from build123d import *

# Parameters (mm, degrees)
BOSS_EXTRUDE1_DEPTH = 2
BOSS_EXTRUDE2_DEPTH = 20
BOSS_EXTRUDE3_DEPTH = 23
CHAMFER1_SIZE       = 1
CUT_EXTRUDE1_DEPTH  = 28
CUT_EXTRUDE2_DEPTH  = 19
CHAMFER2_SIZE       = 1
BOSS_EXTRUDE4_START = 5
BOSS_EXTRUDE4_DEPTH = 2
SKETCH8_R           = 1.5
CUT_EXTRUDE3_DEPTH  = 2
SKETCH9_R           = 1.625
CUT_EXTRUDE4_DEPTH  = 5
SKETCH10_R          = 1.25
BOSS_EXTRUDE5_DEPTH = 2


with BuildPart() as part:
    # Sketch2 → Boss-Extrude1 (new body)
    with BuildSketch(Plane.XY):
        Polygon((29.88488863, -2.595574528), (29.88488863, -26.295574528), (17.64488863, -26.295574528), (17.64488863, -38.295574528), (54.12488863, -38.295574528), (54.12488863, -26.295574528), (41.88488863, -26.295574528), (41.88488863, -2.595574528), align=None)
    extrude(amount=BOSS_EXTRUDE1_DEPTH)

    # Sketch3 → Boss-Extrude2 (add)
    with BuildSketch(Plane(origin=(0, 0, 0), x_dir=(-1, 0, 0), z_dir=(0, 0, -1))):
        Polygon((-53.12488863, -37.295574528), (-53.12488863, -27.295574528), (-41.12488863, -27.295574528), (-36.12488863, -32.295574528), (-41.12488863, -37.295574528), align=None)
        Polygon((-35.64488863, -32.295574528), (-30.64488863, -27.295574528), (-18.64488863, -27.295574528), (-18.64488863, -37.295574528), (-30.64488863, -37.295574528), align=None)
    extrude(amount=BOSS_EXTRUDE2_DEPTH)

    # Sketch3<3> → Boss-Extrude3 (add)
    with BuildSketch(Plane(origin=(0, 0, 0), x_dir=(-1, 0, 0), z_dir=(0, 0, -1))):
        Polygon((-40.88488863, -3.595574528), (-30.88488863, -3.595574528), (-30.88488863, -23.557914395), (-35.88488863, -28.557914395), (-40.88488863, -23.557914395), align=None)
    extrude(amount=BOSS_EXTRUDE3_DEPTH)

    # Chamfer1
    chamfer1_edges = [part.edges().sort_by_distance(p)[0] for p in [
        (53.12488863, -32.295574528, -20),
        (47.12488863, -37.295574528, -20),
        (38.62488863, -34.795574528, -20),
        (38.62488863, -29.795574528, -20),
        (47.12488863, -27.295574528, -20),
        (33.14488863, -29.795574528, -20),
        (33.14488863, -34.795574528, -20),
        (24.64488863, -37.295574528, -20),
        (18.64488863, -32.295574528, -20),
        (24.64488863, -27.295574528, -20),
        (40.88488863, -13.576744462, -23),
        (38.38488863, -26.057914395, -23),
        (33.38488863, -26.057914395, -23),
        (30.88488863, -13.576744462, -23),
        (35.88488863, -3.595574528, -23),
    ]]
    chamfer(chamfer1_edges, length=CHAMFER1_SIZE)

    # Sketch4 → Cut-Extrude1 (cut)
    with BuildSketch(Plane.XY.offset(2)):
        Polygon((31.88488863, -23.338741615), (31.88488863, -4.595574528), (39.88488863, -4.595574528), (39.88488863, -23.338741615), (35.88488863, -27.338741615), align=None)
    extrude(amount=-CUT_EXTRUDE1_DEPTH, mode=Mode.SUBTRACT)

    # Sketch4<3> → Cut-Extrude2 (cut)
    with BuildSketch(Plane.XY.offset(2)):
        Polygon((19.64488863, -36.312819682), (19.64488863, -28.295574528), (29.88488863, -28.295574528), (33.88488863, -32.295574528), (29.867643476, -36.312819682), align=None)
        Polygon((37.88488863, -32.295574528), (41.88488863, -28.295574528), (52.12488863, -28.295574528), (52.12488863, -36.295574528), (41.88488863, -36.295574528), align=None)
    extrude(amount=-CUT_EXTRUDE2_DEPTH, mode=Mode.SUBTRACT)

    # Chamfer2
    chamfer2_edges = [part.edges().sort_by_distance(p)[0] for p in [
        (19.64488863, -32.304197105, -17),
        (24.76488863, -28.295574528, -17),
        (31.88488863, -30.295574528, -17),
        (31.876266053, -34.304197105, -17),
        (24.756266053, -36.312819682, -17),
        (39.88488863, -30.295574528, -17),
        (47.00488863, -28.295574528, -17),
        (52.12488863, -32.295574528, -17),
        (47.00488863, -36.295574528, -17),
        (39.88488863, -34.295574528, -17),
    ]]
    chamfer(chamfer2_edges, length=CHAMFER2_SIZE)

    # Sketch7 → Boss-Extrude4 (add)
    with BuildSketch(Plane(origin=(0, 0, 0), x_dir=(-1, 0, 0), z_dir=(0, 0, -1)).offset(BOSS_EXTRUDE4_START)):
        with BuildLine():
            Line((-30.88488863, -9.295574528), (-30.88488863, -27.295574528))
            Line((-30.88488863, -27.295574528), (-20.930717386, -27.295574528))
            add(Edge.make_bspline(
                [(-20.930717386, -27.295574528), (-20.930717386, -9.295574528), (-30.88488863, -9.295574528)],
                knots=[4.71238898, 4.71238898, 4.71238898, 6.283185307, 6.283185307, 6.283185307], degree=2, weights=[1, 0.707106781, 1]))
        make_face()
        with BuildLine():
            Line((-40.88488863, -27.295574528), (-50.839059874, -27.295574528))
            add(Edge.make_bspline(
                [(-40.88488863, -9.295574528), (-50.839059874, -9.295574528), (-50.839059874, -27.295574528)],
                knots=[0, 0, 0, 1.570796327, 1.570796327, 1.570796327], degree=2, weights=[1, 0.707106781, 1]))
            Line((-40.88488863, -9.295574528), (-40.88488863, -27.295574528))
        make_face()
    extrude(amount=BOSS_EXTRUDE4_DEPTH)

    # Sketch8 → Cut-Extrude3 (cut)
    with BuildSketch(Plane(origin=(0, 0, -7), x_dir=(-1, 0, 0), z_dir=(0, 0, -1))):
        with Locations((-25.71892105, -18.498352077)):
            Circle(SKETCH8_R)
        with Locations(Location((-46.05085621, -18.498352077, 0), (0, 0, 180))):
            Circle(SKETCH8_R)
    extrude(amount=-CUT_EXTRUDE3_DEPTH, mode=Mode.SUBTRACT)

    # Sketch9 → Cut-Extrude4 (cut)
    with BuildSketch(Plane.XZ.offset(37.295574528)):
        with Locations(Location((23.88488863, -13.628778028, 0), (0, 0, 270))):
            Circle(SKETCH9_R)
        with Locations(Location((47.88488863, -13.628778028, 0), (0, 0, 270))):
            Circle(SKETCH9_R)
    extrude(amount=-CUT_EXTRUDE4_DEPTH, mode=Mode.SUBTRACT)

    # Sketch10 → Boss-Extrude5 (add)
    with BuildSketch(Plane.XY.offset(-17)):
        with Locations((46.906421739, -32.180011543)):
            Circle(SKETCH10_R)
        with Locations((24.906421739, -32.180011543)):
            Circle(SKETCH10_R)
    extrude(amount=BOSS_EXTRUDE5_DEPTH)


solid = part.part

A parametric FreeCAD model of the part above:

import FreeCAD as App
import Part
import Sketcher

V = App.Vector
Q = App.Units.Quantity


def edges_at(feature, points):
    """Names of the edges that pass closest to the given points."""
    edges = feature.Shape.Edges
    near = lambda p: min(range(len(edges)), key=lambda i: edges[i].distToShape(Part.Vertex(*p))[0])
    return sorted({f"Edge{near(p) + 1}" for p in points})

doc = App.newDocument("Part")
body = doc.addObject("PartDesign::Body", "Body")

# Sketch on XY plane
sketch1 = body.newObject("Sketcher::SketchObject", "Sketch")
sketch1.AttachmentSupport = (doc.getObject("XY_Plane"), [""])
sketch1.MapMode = "FlatFace"
sketch1.addGeometry(Part.LineSegment(V(30, -3, 0), V(30, -26, 0)), False)
sketch1.addGeometry(Part.LineSegment(V(30, -26, 0), V(18, -26, 0)), False)
sketch1.addGeometry(Part.LineSegment(V(18, -26, 0), V(18, -38, 0)), False)
sketch1.addGeometry(Part.LineSegment(V(18, -38, 0), V(54, -38, 0)), False)
sketch1.addGeometry(Part.LineSegment(V(54, -38, 0), V(54, -26, 0)), False)
sketch1.addGeometry(Part.LineSegment(V(54, -26, 0), V(42, -26, 0)), False)
sketch1.addGeometry(Part.LineSegment(V(42, -26, 0), V(42, -3, 0)), False)
sketch1.addGeometry(Part.LineSegment(V(42, -3, 0), V(30, -3, 0)), False)
sketch1.addConstraint(Sketcher.Constraint("Coincident", 0, 2, 1, 1))
sketch1.addConstraint(Sketcher.Constraint("Coincident", 1, 2, 2, 1))
sketch1.addConstraint(Sketcher.Constraint("Coincident", 2, 2, 3, 1))
sketch1.addConstraint(Sketcher.Constraint("Coincident", 3, 2, 4, 1))
sketch1.addConstraint(Sketcher.Constraint("Coincident", 4, 2, 5, 1))
sketch1.addConstraint(Sketcher.Constraint("Coincident", 5, 2, 6, 1))
sketch1.addConstraint(Sketcher.Constraint("Coincident", 6, 2, 7, 1))
sketch1.addConstraint(Sketcher.Constraint("Coincident", 7, 2, 0, 1))
sketch1.addConstraint(Sketcher.Constraint("Vertical", 0))
sketch1.addConstraint(Sketcher.Constraint("Horizontal", 1))
sketch1.addConstraint(Sketcher.Constraint("Vertical", 2))
sketch1.addConstraint(Sketcher.Constraint("Horizontal", 3))
sketch1.addConstraint(Sketcher.Constraint("Vertical", 4))
sketch1.addConstraint(Sketcher.Constraint("Horizontal", 5))
sketch1.addConstraint(Sketcher.Constraint("Vertical", 6))
sketch1.addConstraint(Sketcher.Constraint("Horizontal", 7))
sketch1.addConstraint(Sketcher.Constraint("Horizontal", 1, 2, 4, 2))
sketch1.addConstraint(Sketcher.Constraint("Equal", 1, 5))
sketch1.addConstraint(Sketcher.Constraint("Equal", 7, 2))
sketch1.addConstraint(Sketcher.Constraint("DistanceX", 7, 2, 7, 1, Q("12 mm")))
sketch1.addConstraint(Sketcher.Constraint("DistanceY", 0, 2, 0, 1, Q("23.7 mm")))
sketch1.addConstraint(Sketcher.Constraint("DistanceX", 1, 2, 1, 1, Q("12.24 mm")))
sketch1.addConstraint(Sketcher.Constraint("DistanceX", -1, 1, 0, 2, Q("29.884889 mm")))
sketch1.addConstraint(Sketcher.Constraint("DistanceY", 0, 2, -1, 1, Q("26.295575 mm")))
pad1 = body.newObject("PartDesign::Pad", "Pad")
pad1.Profile = sketch1
pad1.Length = 2

# Sketch on XY plane
sketch2 = body.newObject("Sketcher::SketchObject", "Sketch001")
sketch2.AttachmentSupport = (doc.getObject("XY_Plane"), [""])
sketch2.MapMode = "FlatFace"
sketch2.addGeometry(Part.LineSegment(V(53, -27, 0), V(53, -37, 0)), False)
sketch2.addGeometry(Part.LineSegment(V(53, -37, 0), V(41, -37, 0)), False)
sketch2.addGeometry(Part.LineSegment(V(41, -37, 0), V(36, -32, 0)), False)
sketch2.addGeometry(Part.LineSegment(V(36, -32, 0), V(41, -27, 0)), False)
sketch2.addGeometry(Part.LineSegment(V(41, -27, 0), V(53, -27, 0)), False)
sketch2.addGeometry(Part.LineSegment(V(31, -27, 0), V(36, -32, 0)), False)
sketch2.addGeometry(Part.LineSegment(V(36, -32, 0), V(31, -37, 0)), False)
sketch2.addGeometry(Part.LineSegment(V(31, -37, 0), V(19, -37, 0)), False)
sketch2.addGeometry(Part.LineSegment(V(19, -37, 0), V(19, -27, 0)), False)
sketch2.addGeometry(Part.LineSegment(V(19, -27, 0), V(31, -27, 0)), False)
sketch2.addConstraint(Sketcher.Constraint("Coincident", 0, 2, 1, 1))
sketch2.addConstraint(Sketcher.Constraint("Coincident", 1, 2, 2, 1))
sketch2.addConstraint(Sketcher.Constraint("Coincident", 2, 2, 3, 1))
sketch2.addConstraint(Sketcher.Constraint("Coincident", 3, 2, 4, 1))
sketch2.addConstraint(Sketcher.Constraint("Coincident", 4, 2, 0, 1))
sketch2.addConstraint(Sketcher.Constraint("Coincident", 5, 2, 6, 1))
sketch2.addConstraint(Sketcher.Constraint("Coincident", 6, 2, 7, 1))
sketch2.addConstraint(Sketcher.Constraint("Coincident", 7, 2, 8, 1))
sketch2.addConstraint(Sketcher.Constraint("Coincident", 8, 2, 9, 1))
sketch2.addConstraint(Sketcher.Constraint("Coincident", 9, 2, 5, 1))
sketch2.addConstraint(Sketcher.Constraint("Vertical", 0))
sketch2.addConstraint(Sketcher.Constraint("Horizontal", 1))
sketch2.addConstraint(Sketcher.Constraint("Horizontal", 4))
sketch2.addConstraint(Sketcher.Constraint("Horizontal", 7))
sketch2.addConstraint(Sketcher.Constraint("Vertical", 8))
sketch2.addConstraint(Sketcher.Constraint("Horizontal", 9))
sketch2.addConstraint(Sketcher.Constraint("Perpendicular", 2, 3))
sketch2.addConstraint(Sketcher.Constraint("Perpendicular", 3, 5))
sketch2.addConstraint(Sketcher.Constraint("Perpendicular", 5, 6))
sketch2.addConstraint(Sketcher.Constraint("Horizontal", 2, 2, 5, 2))
sketch2.addConstraint(Sketcher.Constraint("Horizontal", 1, 2, 6, 2))
sketch2.addConstraint(Sketcher.Constraint("Horizontal", 4, 2, 8, 2))
sketch2.addConstraint(Sketcher.Constraint("Vertical", 1, 2, 3, 2))
sketch2.addConstraint(Sketcher.Constraint("Vertical", 6, 2, 9, 2))
sketch2.addConstraint(Sketcher.Constraint("Equal", 4, 7))
sketch2.addConstraint(Sketcher.Constraint("DistanceX", 1, 2, 1, 1, Q("12 mm")))
sketch2.addConstraint(Sketcher.Constraint("DistanceY", 0, 2, 0, 1, Q("10 mm")))
sketch2.addConstraint(Sketcher.Constraint("DistanceX", 5, 2, 2, 2, Q("0.48 mm")))
sketch2.addConstraint(Sketcher.Constraint("DistanceX", -1, 1, 0, 2, Q("53.124889 mm")))
sketch2.addConstraint(Sketcher.Constraint("DistanceY", 0, 2, -1, 1, Q("37.295575 mm")))
pad2 = body.newObject("PartDesign::Pad", "Pad001")
pad2.Profile = sketch2
pad2.Length = 20
pad2.Reversed = True

# Sketch on XY plane
sketch3 = body.newObject("Sketcher::SketchObject", "Sketch002")
sketch3.AttachmentSupport = (doc.getObject("XY_Plane"), [""])
sketch3.MapMode = "FlatFace"
sketch3.addGeometry(Part.LineSegment(V(31, -4, 0), V(41, -4, 0)), False)
sketch3.addGeometry(Part.LineSegment(V(41, -4, 0), V(41, -24, 0)), False)
sketch3.addGeometry(Part.LineSegment(V(41, -24, 0), V(36, -29, 0)), False)
sketch3.addGeometry(Part.LineSegment(V(36, -29, 0), V(31, -24, 0)), False)
sketch3.addGeometry(Part.LineSegment(V(31, -24, 0), V(31, -4, 0)), False)
sketch3.addConstraint(Sketcher.Constraint("Coincident", 0, 2, 1, 1))
sketch3.addConstraint(Sketcher.Constraint("Coincident", 1, 2, 2, 1))
sketch3.addConstraint(Sketcher.Constraint("Coincident", 2, 2, 3, 1))
sketch3.addConstraint(Sketcher.Constraint("Coincident", 3, 2, 4, 1))
sketch3.addConstraint(Sketcher.Constraint("Coincident", 4, 2, 0, 1))
sketch3.addConstraint(Sketcher.Constraint("Horizontal", 0))
sketch3.addConstraint(Sketcher.Constraint("Vertical", 1))
sketch3.addConstraint(Sketcher.Constraint("Vertical", 4))
sketch3.addConstraint(Sketcher.Constraint("Perpendicular", 2, 3))
sketch3.addConstraint(Sketcher.Constraint("Horizontal", 1, 2, 3, 2))
sketch3.addConstraint(Sketcher.Constraint("Equal", 2, 3))
sketch3.addConstraint(Sketcher.Constraint("DistanceX", 0, 1, 0, 2, Q("10 mm")))
sketch3.addConstraint(Sketcher.Constraint("DistanceY", 1, 2, 1, 1, Q("19.96234 mm")))
sketch3.addConstraint(Sketcher.Constraint("DistanceX", -1, 1, 0, 2, Q("40.884889 mm")))
sketch3.addConstraint(Sketcher.Constraint("DistanceY", 0, 2, -1, 1, Q("3.595575 mm")))
pad3 = body.newObject("PartDesign::Pad", "Pad002")
pad3.Profile = sketch3
pad3.Length = 23
pad3.Reversed = True
doc.recompute()

chamfer = body.newObject("PartDesign::Chamfer", "Chamfer")
chamfer.Base = (pad3, edges_at(pad3, [
    (53.125, -32.296, -20),
    (47.125, -37.296, -20),
    (38.625, -34.796, -20),
    (38.625, -29.796, -20),
    (47.125, -27.296, -20),
    (33.145, -29.796, -20),
    (33.145, -34.796, -20),
    (24.645, -37.296, -20),
    (18.645, -32.296, -20),
    (24.645, -27.296, -20),
    (40.885, -13.577, -23),
    (38.385, -26.058, -23),
    (33.385, -26.058, -23),
    (30.885, -13.577, -23),
    (35.885, -3.596, -23),
]))
chamfer.Size = 1

# Sketch on XY plane
sketch4 = body.newObject("Sketcher::SketchObject", "Sketch003")
sketch4.AttachmentSupport = (doc.getObject("XY_Plane"), [""])
sketch4.MapMode = "FlatFace"
sketch4.AttachmentOffset = App.Placement(V(0, 0, 2), App.Rotation())
sketch4.addGeometry(Part.LineSegment(V(32, -5, 0), V(32, -23, 0)), False)
sketch4.addGeometry(Part.LineSegment(V(32, -23, 0), V(36, -27, 0)), False)
sketch4.addGeometry(Part.LineSegment(V(36, -27, 0), V(40, -23, 0)), False)
sketch4.addGeometry(Part.LineSegment(V(40, -23, 0), V(40, -5, 0)), False)
sketch4.addGeometry(Part.LineSegment(V(40, -5, 0), V(32, -5, 0)), False)
sketch4.addConstraint(Sketcher.Constraint("Coincident", 0, 2, 1, 1))
sketch4.addConstraint(Sketcher.Constraint("Coincident", 1, 2, 2, 1))
sketch4.addConstraint(Sketcher.Constraint("Coincident", 2, 2, 3, 1))
sketch4.addConstraint(Sketcher.Constraint("Coincident", 3, 2, 4, 1))
sketch4.addConstraint(Sketcher.Constraint("Coincident", 4, 2, 0, 1))
sketch4.addConstraint(Sketcher.Constraint("Vertical", 0))
sketch4.addConstraint(Sketcher.Constraint("Vertical", 3))
sketch4.addConstraint(Sketcher.Constraint("Horizontal", 4))
sketch4.addConstraint(Sketcher.Constraint("Perpendicular", 1, 2))
sketch4.addConstraint(Sketcher.Constraint("Horizontal", 0, 2, 2, 2))
sketch4.addConstraint(Sketcher.Constraint("Equal", 1, 2))
sketch4.addConstraint(Sketcher.Constraint("DistanceX", 4, 2, 4, 1, Q("8 mm")))
sketch4.addConstraint(Sketcher.Constraint("DistanceY", 0, 2, 0, 1, Q("18.743167 mm")))
sketch4.addConstraint(Sketcher.Constraint("DistanceX", -1, 1, 0, 2, Q("31.884889 mm")))
sketch4.addConstraint(Sketcher.Constraint("DistanceY", 0, 2, -1, 1, Q("23.338742 mm")))
pocket1 = body.newObject("PartDesign::Pocket", "Pocket")
pocket1.Profile = sketch4
pocket1.Length = 28

# Sketch on XY plane
sketch5 = body.newObject("Sketcher::SketchObject", "Sketch004")
sketch5.AttachmentSupport = (doc.getObject("XY_Plane"), [""])
sketch5.MapMode = "FlatFace"
sketch5.AttachmentOffset = App.Placement(V(0, 0, 2), App.Rotation())
sketch5.addGeometry(Part.LineSegment(V(20, -28, 0), V(20, -36, 0)), False)
sketch5.addGeometry(Part.LineSegment(V(20, -36, 0), V(30, -36, 0)), False)
sketch5.addGeometry(Part.LineSegment(V(30, -36, 0), V(34, -32, 0)), False)
sketch5.addGeometry(Part.LineSegment(V(34, -32, 0), V(30, -28, 0)), False)
sketch5.addGeometry(Part.LineSegment(V(30, -28, 0), V(20, -28, 0)), False)
sketch5.addGeometry(Part.LineSegment(V(42, -28, 0), V(38, -32, 0)), False)
sketch5.addGeometry(Part.LineSegment(V(38, -32, 0), V(42, -36, 0)), False)
sketch5.addGeometry(Part.LineSegment(V(42, -36, 0), V(52, -36, 0)), False)
sketch5.addGeometry(Part.LineSegment(V(52, -36, 0), V(52, -28, 0)), False)
sketch5.addGeometry(Part.LineSegment(V(52, -28, 0), V(42, -28, 0)), False)
sketch5.addConstraint(Sketcher.Constraint("Coincident", 0, 2, 1, 1))
sketch5.addConstraint(Sketcher.Constraint("Coincident", 1, 2, 2, 1))
sketch5.addConstraint(Sketcher.Constraint("Coincident", 2, 2, 3, 1))
sketch5.addConstraint(Sketcher.Constraint("Coincident", 3, 2, 4, 1))
sketch5.addConstraint(Sketcher.Constraint("Coincident", 4, 2, 0, 1))
sketch5.addConstraint(Sketcher.Constraint("Coincident", 5, 2, 6, 1))
sketch5.addConstraint(Sketcher.Constraint("Coincident", 6, 2, 7, 1))
sketch5.addConstraint(Sketcher.Constraint("Coincident", 7, 2, 8, 1))
sketch5.addConstraint(Sketcher.Constraint("Coincident", 8, 2, 9, 1))
sketch5.addConstraint(Sketcher.Constraint("Coincident", 9, 2, 5, 1))
sketch5.addConstraint(Sketcher.Constraint("Vertical", 0))
sketch5.addConstraint(Sketcher.Constraint("Horizontal", 1))
sketch5.addConstraint(Sketcher.Constraint("Horizontal", 4))
sketch5.addConstraint(Sketcher.Constraint("Horizontal", 7))
sketch5.addConstraint(Sketcher.Constraint("Vertical", 8))
sketch5.addConstraint(Sketcher.Constraint("Horizontal", 9))
sketch5.addConstraint(Sketcher.Constraint("Perpendicular", 2, 3))
sketch5.addConstraint(Sketcher.Constraint("Perpendicular", 3, 5))
sketch5.addConstraint(Sketcher.Constraint("Perpendicular", 5, 6))
sketch5.addConstraint(Sketcher.Constraint("Horizontal", 2, 2, 5, 2))
sketch5.addConstraint(Sketcher.Constraint("Horizontal", 4, 2, 8, 2))
sketch5.addConstraint(Sketcher.Constraint("Vertical", 6, 2, 9, 2))
sketch5.addConstraint(Sketcher.Constraint("Equal", 4, 7))
sketch5.addConstraint(Sketcher.Constraint("Equal", 3, 5))
sketch5.addConstraint(Sketcher.Constraint("DistanceY", 8, 1, 8, 2, Q("8 mm")))
sketch5.addConstraint(Sketcher.Constraint("DistanceX", 2, 2, 5, 2, Q("4 mm")))
sketch5.addConstraint(Sketcher.Constraint("DistanceX", 4, 2, 4, 1, Q("10.24 mm")))
sketch5.addConstraint(Sketcher.Constraint("DistanceX", 1, 1, 1, 2, Q("10.222755 mm")))
sketch5.addConstraint(Sketcher.Constraint("DistanceX", -1, 1, 0, 2, Q("19.644889 mm")))
sketch5.addConstraint(Sketcher.Constraint("DistanceY", 0, 2, -1, 1, Q("36.31282 mm")))
pocket2 = body.newObject("PartDesign::Pocket", "Pocket001")
pocket2.Profile = sketch5
pocket2.Length = 19
doc.recompute()

chamfer2 = body.newObject("PartDesign::Chamfer", "Chamfer001")
chamfer2.Base = (pocket2, edges_at(pocket2, [
    (19.645, -32.304, -17),
    (24.765, -28.296, -17),
    (31.885, -30.296, -17),
    (31.876, -34.304, -17),
    (24.756, -36.313, -17),
    (39.885, -30.296, -17),
    (47.005, -28.296, -17),
    (52.125, -32.296, -17),
    (47.005, -36.296, -17),
    (39.885, -34.296, -17),
]))
chamfer2.Size = 1

# Sketch on XY plane
sketch6 = body.newObject("Sketcher::SketchObject", "Sketch005")
sketch6.AttachmentSupport = (doc.getObject("XY_Plane"), [""])
sketch6.MapMode = "FlatFace"
sketch6.AttachmentOffset = App.Placement(V(0, 0, -5), App.Rotation())
sketch6.addGeometry(Part.LineSegment(V(30.884889, -9.295575, 0), V(30.884889, -27.295575, 0)), False)
sketch6.addGeometry(Part.LineSegment(V(30.884889, -27.295575, 0), V(20.930717, -27.295575, 0)), False)
sketch6.addGeometry(Part.BSplineCurve([V(20.930717, -27.295575, 0), V(20.930717, -9.295575, 0), V(30.884889, -9.295575, 0)], [3, 3], [4.71238898, 6.283185307], False, 2, [1, 0.707106781, 1], False), False)
sketch6.addGeometry(Part.LineSegment(V(50.83906, -27.295575, 0), V(40.884889, -27.295575, 0)), False)
sketch6.addGeometry(Part.LineSegment(V(40.884889, -27.295575, 0), V(40.884889, -9.295575, 0)), False)
sketch6.addGeometry(Part.BSplineCurve([V(40.884889, -9.295575, 0), V(50.83906, -9.295575, 0), V(50.83906, -27.295575, 0)], [3, 3], [0, 1.570796327], False, 2, [1, 0.707106781, 1], False), False)
sketch6.addConstraint(Sketcher.Constraint("Block", 2))
sketch6.addConstraint(Sketcher.Constraint("Block", 5))
sketch6.addConstraint(Sketcher.Constraint("Coincident", 0, 2, 1, 1))
sketch6.addConstraint(Sketcher.Constraint("Coincident", 1, 2, 2, 1))
sketch6.addConstraint(Sketcher.Constraint("Coincident", 2, 2, 0, 1))
sketch6.addConstraint(Sketcher.Constraint("Coincident", 3, 2, 4, 1))
sketch6.addConstraint(Sketcher.Constraint("Coincident", 4, 2, 5, 1))
sketch6.addConstraint(Sketcher.Constraint("Coincident", 5, 2, 3, 1))
sketch6.addConstraint(Sketcher.Constraint("Vertical", 0))
sketch6.addConstraint(Sketcher.Constraint("Horizontal", 1))
sketch6.addConstraint(Sketcher.Constraint("Horizontal", 3))
sketch6.addConstraint(Sketcher.Constraint("Vertical", 4))
pad4 = body.newObject("PartDesign::Pad", "Pad003")
pad4.Profile = sketch6
pad4.Length = 2
pad4.Reversed = True

# Sketch on XY plane
sketch7 = body.newObject("Sketcher::SketchObject", "Sketch006")
sketch7.AttachmentSupport = (doc.getObject("XY_Plane"), [""])
sketch7.MapMode = "FlatFace"
sketch7.AttachmentOffset = App.Placement(V(0, 0, -7), App.Rotation())
sketch7.addGeometry(Part.Circle(V(25.7, -18.5, 0), V(0, 0, 1), 1.5), False)
sketch7.addGeometry(Part.Circle(V(46.1, -18.5, 0), V(0, 0, 1), 1.5), False)
sketch7.addConstraint(Sketcher.Constraint("Equal", 0, 1))
sketch7.addConstraint(Sketcher.Constraint("Horizontal", 0, 3, 1, 3))
sketch7.addConstraint(Sketcher.Constraint("Diameter", 0, Q("3 mm")))
sketch7.addConstraint(Sketcher.Constraint("DistanceX", -1, 1, 0, 3, Q("25.718921 mm")))
sketch7.addConstraint(Sketcher.Constraint("DistanceY", 0, 3, -1, 1, Q("18.498352 mm")))
sketch7.addConstraint(Sketcher.Constraint("DistanceX", -1, 1, 1, 3, Q("46.050856 mm")))
pocket3 = body.newObject("PartDesign::Pocket", "Pocket002")
pocket3.Profile = sketch7
pocket3.Length = 2
pocket3.Reversed = True

# Sketch on XZ plane
sketch8 = body.newObject("Sketcher::SketchObject", "Sketch007")
sketch8.AttachmentSupport = (doc.getObject("XZ_Plane"), [""])
sketch8.MapMode = "FlatFace"
sketch8.AttachmentOffset = App.Placement(V(0, 0, 37.295575), App.Rotation())
sketch8.addGeometry(Part.Circle(V(23.9, -13.6, 0), V(0, 0, 1), 1.6), False)
sketch8.addGeometry(Part.Circle(V(47.9, -13.6, 0), V(0, 0, 1), 1.6), False)
sketch8.addConstraint(Sketcher.Constraint("Equal", 0, 1))
sketch8.addConstraint(Sketcher.Constraint("Horizontal", 0, 3, 1, 3))
sketch8.addConstraint(Sketcher.Constraint("Diameter", 0, Q("3.25 mm")))
sketch8.addConstraint(Sketcher.Constraint("DistanceX", 0, 3, 1, 3, Q("24 mm")))
sketch8.addConstraint(Sketcher.Constraint("DistanceX", -1, 1, 0, 3, Q("23.884889 mm")))
sketch8.addConstraint(Sketcher.Constraint("DistanceY", 0, 3, -1, 1, Q("13.628778 mm")))
pocket4 = body.newObject("PartDesign::Pocket", "Pocket003")
pocket4.Profile = sketch8
pocket4.Length = 5

# Sketch on XY plane
sketch9 = body.newObject("Sketcher::SketchObject", "Sketch008")
sketch9.AttachmentSupport = (doc.getObject("XY_Plane"), [""])
sketch9.MapMode = "FlatFace"
sketch9.AttachmentOffset = App.Placement(V(0, 0, -17), App.Rotation())
sketch9.addGeometry(Part.Circle(V(46.9, -32.2, 0), V(0, 0, 1), 1.2), False)
sketch9.addGeometry(Part.Circle(V(24.9, -32.2, 0), V(0, 0, 1), 1.2), False)
sketch9.addConstraint(Sketcher.Constraint("Equal", 0, 1))
sketch9.addConstraint(Sketcher.Constraint("Horizontal", 0, 3, 1, 3))
sketch9.addConstraint(Sketcher.Constraint("Diameter", 0, Q("2.5 mm")))
sketch9.addConstraint(Sketcher.Constraint("DistanceX", 1, 3, 0, 3, Q("22 mm")))
sketch9.addConstraint(Sketcher.Constraint("DistanceX", -1, 1, 0, 3, Q("46.906422 mm")))
sketch9.addConstraint(Sketcher.Constraint("DistanceY", 0, 3, -1, 1, Q("32.180012 mm")))
pad5 = body.newObject("PartDesign::Pad", "Pad004")
pad5.Profile = sketch9
pad5.Length = 2

doc.recompute()
